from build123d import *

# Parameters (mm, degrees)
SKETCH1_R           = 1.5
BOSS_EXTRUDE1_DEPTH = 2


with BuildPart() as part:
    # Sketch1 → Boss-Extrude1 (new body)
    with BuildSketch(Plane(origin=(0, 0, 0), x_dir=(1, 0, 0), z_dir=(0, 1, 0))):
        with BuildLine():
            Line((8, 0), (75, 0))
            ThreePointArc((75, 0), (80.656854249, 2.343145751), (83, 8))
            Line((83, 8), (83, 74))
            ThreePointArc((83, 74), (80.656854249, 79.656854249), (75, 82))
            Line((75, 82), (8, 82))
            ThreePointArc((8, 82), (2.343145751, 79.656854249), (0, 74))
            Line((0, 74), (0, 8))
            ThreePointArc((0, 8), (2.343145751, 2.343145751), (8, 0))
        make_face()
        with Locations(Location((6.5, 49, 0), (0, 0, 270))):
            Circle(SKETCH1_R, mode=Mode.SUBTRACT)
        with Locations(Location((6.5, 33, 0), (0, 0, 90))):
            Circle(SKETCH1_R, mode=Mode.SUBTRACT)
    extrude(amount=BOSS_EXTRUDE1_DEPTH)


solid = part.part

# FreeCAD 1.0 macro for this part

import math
import FreeCAD as App
import Part
import Sketcher

doc = App.newDocument("Part")
params = doc.addObject("Spreadsheet::Sheet", "Params")
for row, (alias, value) in enumerate([
    ("sketch1_diameter", "3 mm"),
    ("sketch1_radius", "8 mm"),
    ("sketch1_width", "67 mm"),
    ("sketch1_height", "66 mm"),
    ("pad1_length", "2 mm"),
], start=1):
    params.set(f"A{row}", alias)
    params.set(f"B{row}", "=" + value)
    params.setAlias(f"B{row}", alias)

body = doc.addObject("PartDesign::Body", "Body")

sketch1 = body.newObject("Sketcher::SketchObject", "Sketch")
sketch1.AttachmentSupport = (doc.getObject("XZ_Plane"), [""])
sketch1.MapMode = "FlatFace"
sketch1.addGeometry([
    Part.LineSegment(App.Vector(8, 0, 0), App.Vector(75, 0, 0)),
    Part.ArcOfCircle(Part.Circle(App.Vector(75, -8, 0), App.Vector(0, 0, 1), 8), math.radians(0), math.radians(90)),
    Part.LineSegment(App.Vector(83, -8, 0), App.Vector(83, -74, 0)),
    Part.ArcOfCircle(Part.Circle(App.Vector(75, -74, 0), App.Vector(0, 0, 1), 8), math.radians(-90), math.radians(0)),
    Part.LineSegment(App.Vector(75, -82, 0), App.Vector(8, -82, 0)),
    Part.ArcOfCircle(Part.Circle(App.Vector(8, -74, 0), App.Vector(0, 0, 1), 8), math.radians(-180), math.radians(-90)),
    Part.LineSegment(App.Vector(0, -74, 0), App.Vector(0, -8, 0)),
    Part.ArcOfCircle(Part.Circle(App.Vector(8, -8, 0), App.Vector(0, 0, 1), 8), math.radians(90), math.radians(180)),
    Part.Circle(App.Vector(6.5, -33, 0), App.Vector(0, 0, 1), 1.5),
    Part.Circle(App.Vector(6.5, -49, 0), App.Vector(0, 0, 1), 1.5),
], False)
sketch1.addConstraint([
    Sketcher.Constraint("Tangent", 0, 2, 1, 2),
    Sketcher.Constraint("Tangent", 1, 1, 2, 1),
    Sketcher.Constraint("Tangent", 2, 2, 3, 2),
    Sketcher.Constraint("Tangent", 3, 1, 4, 1),
    Sketcher.Constraint("Tangent", 4, 2, 5, 2),
    Sketcher.Constraint("Tangent", 5, 1, 6, 1),
    Sketcher.Constraint("Tangent", 6, 2, 7, 2),
    Sketcher.Constraint("Tangent", 7, 1, 0, 1),
    Sketcher.Constraint("Horizontal", 0),
    Sketcher.Constraint("Vertical", 2),
    Sketcher.Constraint("Horizontal", 4),
    Sketcher.Constraint("Vertical", 6),
    Sketcher.Constraint("Equal", 1, 3),
    Sketcher.Constraint("Equal", 3, 5),
    Sketcher.Constraint("Equal", 5, 7),
    Sketcher.Constraint("Equal", 8, 9),
    Sketcher.Constraint("PointOnObject", 0, 2, -1),
    Sketcher.Constraint("PointOnObject", 5, 1, -2),
    Sketcher.Constraint("Vertical", 8, 3, 9, 3),
    Sketcher.Constraint("Diameter", 8, 3.0),
    Sketcher.Constraint("Radius", 1, 8.0),
    Sketcher.Constraint("DistanceX", 0, 1, 0, 2, 67.0),
    Sketcher.Constraint("DistanceY", 2, 2, 2, 1, 66.0),
    Sketcher.Constraint("DistanceY", 8, 3, -1, 1, 33.0),
    Sketcher.Constraint("DistanceY", 9, 3, -1, 1, 49.0),
    Sketcher.Constraint("DistanceX", -1, 1, 8, 3, 6.5),
])
sketch1.setExpression("Constraints[19]", "Params.sketch1_diameter")
sketch1.setExpression("Constraints[20]", "Params.sketch1_radius")
sketch1.setExpression("Constraints[21]", "Params.sketch1_width")
sketch1.setExpression("Constraints[22]", "Params.sketch1_height")
pad1 = body.newObject("PartDesign::Pad", "Pad")
pad1.Profile = sketch1
pad1.setExpression("Length", "Params.pad1_length")
pad1.Reversed = True

doc.recompute()
